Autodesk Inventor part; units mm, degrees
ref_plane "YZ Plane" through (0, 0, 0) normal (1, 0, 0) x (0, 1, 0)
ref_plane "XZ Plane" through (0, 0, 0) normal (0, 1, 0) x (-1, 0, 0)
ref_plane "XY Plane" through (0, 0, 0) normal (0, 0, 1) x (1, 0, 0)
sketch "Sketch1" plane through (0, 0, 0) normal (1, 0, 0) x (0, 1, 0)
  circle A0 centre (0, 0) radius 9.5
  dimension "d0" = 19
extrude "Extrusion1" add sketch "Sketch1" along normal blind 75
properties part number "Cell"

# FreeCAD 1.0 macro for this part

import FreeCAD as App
import Part
import Sketcher
from FreeCAD import Vector
Q = App.Units.Quantity

doc = App.newDocument("Part")
body = doc.addObject("PartDesign::Body", "Body")

sketch1 = doc.addObject("Sketcher::SketchObject", "Sketch")
body.addObject(sketch1)
sketch1.AttachmentSupport = (doc.YZ_Plane, [""])
sketch1.MapMode = "FlatFace"
sketch1.addGeometry(Part.Circle(Vector(0, 0, 0), Vector(0, 0, 1), 10), False)
sketch1.addConstraint([
    Sketcher.Constraint("Coincident", 0, 3, -1, 1),
    Sketcher.Constraint("Diameter", 0, Q("19 mm")),
])
pad1 = doc.addObject("PartDesign::Pad", "Pad")
body.addObject(pad1)
pad1.Profile = sketch1
pad1.Length = 75

doc.recompute()
